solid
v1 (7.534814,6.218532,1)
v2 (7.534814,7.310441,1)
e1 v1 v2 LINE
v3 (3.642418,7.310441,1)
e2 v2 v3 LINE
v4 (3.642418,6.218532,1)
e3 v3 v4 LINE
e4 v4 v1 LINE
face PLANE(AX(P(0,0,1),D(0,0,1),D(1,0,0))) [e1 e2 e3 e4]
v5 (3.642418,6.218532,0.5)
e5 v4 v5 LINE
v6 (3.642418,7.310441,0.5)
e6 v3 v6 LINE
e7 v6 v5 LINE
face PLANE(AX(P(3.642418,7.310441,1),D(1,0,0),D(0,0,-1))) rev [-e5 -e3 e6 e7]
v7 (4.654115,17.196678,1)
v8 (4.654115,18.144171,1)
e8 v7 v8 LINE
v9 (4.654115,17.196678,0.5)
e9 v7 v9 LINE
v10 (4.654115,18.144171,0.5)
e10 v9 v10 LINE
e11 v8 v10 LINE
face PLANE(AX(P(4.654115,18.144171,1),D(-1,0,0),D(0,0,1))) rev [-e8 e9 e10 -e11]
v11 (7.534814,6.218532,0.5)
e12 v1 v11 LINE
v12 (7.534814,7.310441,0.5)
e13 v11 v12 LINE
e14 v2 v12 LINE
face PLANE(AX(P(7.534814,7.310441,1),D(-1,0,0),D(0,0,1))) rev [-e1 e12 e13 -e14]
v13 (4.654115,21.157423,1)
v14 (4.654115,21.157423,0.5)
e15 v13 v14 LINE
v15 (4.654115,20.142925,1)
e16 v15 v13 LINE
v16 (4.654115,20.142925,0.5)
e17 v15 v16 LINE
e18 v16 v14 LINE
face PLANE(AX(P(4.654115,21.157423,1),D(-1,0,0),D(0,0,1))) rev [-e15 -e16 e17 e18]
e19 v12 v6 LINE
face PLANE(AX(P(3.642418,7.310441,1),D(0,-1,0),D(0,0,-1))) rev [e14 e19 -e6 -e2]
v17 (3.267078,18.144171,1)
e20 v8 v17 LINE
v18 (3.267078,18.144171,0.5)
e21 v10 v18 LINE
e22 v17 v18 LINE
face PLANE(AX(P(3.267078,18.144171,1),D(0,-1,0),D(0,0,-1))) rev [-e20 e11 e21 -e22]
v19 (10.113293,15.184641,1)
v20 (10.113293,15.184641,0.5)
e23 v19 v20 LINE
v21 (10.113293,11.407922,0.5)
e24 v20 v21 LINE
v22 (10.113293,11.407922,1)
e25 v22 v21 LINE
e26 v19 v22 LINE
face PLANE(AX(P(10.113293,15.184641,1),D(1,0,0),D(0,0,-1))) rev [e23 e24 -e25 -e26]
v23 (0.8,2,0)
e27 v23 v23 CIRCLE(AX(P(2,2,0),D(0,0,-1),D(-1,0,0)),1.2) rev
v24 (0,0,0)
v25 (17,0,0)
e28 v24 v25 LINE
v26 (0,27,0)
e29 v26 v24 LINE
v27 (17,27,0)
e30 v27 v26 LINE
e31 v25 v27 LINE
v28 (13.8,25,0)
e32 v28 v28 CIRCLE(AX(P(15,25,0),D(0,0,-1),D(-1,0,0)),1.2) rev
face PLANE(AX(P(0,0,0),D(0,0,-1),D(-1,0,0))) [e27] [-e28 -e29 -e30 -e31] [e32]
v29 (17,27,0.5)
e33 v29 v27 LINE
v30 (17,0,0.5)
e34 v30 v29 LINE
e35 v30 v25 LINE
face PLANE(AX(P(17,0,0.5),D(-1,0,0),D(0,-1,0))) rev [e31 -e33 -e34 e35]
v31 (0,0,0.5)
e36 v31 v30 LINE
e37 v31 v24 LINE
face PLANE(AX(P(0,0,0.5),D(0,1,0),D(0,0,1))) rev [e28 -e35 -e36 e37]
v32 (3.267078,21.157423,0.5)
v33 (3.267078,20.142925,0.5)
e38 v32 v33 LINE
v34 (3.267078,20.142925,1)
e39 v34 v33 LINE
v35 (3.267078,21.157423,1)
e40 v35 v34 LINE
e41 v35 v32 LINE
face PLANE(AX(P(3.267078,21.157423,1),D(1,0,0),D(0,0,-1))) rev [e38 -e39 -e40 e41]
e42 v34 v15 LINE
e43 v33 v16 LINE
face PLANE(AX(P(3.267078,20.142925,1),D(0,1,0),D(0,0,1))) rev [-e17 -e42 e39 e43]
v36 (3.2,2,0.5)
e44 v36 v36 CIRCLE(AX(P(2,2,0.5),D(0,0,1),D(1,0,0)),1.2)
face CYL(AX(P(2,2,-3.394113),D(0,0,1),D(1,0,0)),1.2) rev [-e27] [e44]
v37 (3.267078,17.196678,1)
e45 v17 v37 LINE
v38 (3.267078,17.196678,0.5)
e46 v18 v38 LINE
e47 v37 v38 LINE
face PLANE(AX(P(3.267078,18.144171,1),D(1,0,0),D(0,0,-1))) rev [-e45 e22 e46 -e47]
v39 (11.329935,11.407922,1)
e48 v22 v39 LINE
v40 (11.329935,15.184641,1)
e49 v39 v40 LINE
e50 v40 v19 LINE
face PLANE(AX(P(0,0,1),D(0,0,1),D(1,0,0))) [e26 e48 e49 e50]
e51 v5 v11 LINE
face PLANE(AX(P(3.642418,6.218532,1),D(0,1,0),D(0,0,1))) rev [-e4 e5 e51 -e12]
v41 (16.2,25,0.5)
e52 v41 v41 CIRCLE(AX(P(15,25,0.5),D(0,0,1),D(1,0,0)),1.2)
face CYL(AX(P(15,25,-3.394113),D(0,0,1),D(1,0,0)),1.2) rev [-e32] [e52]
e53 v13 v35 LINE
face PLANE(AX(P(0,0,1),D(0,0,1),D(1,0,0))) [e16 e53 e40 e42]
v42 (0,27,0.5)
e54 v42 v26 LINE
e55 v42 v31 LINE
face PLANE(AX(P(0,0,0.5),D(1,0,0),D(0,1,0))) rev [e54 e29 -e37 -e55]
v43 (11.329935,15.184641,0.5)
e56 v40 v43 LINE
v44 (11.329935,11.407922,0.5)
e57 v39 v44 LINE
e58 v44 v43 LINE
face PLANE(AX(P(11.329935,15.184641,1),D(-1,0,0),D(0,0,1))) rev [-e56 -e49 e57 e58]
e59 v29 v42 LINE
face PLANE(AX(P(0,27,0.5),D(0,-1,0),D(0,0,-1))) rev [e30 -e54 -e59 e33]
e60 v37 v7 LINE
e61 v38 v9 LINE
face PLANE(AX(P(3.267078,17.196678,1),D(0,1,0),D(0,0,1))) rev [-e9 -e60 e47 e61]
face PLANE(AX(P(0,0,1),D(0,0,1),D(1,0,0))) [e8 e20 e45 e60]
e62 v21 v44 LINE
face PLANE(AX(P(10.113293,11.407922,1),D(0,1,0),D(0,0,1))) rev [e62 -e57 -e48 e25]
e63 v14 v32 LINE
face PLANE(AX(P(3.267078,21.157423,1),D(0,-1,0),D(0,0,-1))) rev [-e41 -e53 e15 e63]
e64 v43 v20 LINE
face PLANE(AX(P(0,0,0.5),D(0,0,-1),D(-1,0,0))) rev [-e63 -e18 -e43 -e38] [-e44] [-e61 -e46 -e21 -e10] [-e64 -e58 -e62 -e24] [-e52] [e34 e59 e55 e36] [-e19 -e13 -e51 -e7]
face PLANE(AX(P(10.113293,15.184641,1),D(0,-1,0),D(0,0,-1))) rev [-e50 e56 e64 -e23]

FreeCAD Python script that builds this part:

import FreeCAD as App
import Part
import Sketcher
from FreeCAD import Vector


def add_polygon(sketch, points):
    """Adds a closed chain of lines whose ends are joined by coincident constraints."""
    first, n = sketch.GeometryCount, len(points)
    for a, b in zip(points, points[1:] + points[:1]):
        sketch.addGeometry(Part.LineSegment(App.Vector(*a, 0), App.Vector(*b, 0)), False)
    for i in range(n):
        sketch.addConstraint(Sketcher.Constraint("Coincident", first + i, 2, first + (i + 1) % n, 1))

doc = App.newDocument("Part")
body = doc.addObject("PartDesign::Body", "Body")

# Sketch on XY plane
sketch1 = doc.addObject("Sketcher::SketchObject", "Sketch")
body.addObject(sketch1)
sketch1.AttachmentSupport = (doc.XY_Plane, [""])
sketch1.MapMode = "FlatFace"
add_polygon(sketch1, [(0, 27), (0, 0), (17, 0), (17, 27)])  # lines 0-3
sketch1.addConstraint([
    Sketcher.Constraint("Vertical", 0),
    Sketcher.Constraint("Horizontal", 1),
    Sketcher.Constraint("Vertical", 2),
    Sketcher.Constraint("Horizontal", 3),
    Sketcher.Constraint("Coincident", 0, 2, -1, 1),
    Sketcher.Constraint("DistanceX", 1, 1, 1, 2, 17.0),
    Sketcher.Constraint("DistanceY", 0, 2, 0, 1, 27.0),
])
pad1 = doc.addObject("PartDesign::Pad", "Pad")
body.addObject(pad1)
pad1.Profile = sketch1
pad1.Length = 0.5

# Sketch on XY plane
sketch2 = doc.addObject("Sketcher::SketchObject", "Sketch001")
body.addObject(sketch2)
sketch2.AttachmentSupport = (doc.XY_Plane, [""])
sketch2.MapMode = "FlatFace"
sketch2.AttachmentOffset = App.Placement(Vector(0, 0, 0.5), App.Rotation())
sketch2.addGeometry([
    Part.Circle(Vector(2, 2, 0), Vector(0, 0, 1), 1.2),
    Part.Circle(Vector(15, 25, 0), Vector(0, 0, 1), 1.2),
], False)
sketch2.addConstraint([
    Sketcher.Constraint("Equal", 0, 1),
    Sketcher.Constraint("Diameter", 0, 2.4),
    Sketcher.Constraint("DistanceX", -1, 1, 0, 3, 2.0),
    Sketcher.Constraint("DistanceY", -1, 1, 0, 3, 2.0),
    Sketcher.Constraint("DistanceX", -1, 1, 1, 3, 15.0),
    Sketcher.Constraint("DistanceY", -1, 1, 1, 3, 25.0),
])
pocket1 = doc.addObject("PartDesign::Pocket", "Pocket")
body.addObject(pocket1)
pocket1.Profile = sketch2
pocket1.Length = 0.5

# Sketch on XY plane
sketch3 = doc.addObject("Sketcher::SketchObject", "Sketch002")
body.addObject(sketch3)
sketch3.AttachmentSupport = (doc.XY_Plane, [""])
sketch3.MapMode = "FlatFace"
sketch3.AttachmentOffset = App.Placement(Vector(0, 0, 0.5), App.Rotation())
add_polygon(sketch3, [(3.3, 21.2), (3.3, 20.1), (4.7, 20.1), (4.7, 21.2)])  # lines 0-3
add_polygon(sketch3, [(3.3, 18.1), (3.3, 17.2), (4.7, 17.2), (4.7, 18.1)])  # lines 4-7
add_polygon(sketch3, [(10.1, 15.2), (10.1, 11.4), (11.3, 11.4), (11.3, 15.2)])  # lines 8-11
add_polygon(sketch3, [(3.6, 7.3), (3.6, 6.2), (7.5, 6.2), (7.5, 7.3)])  # lines 12-15
sketch3.addConstraint([
    Sketcher.Constraint("Vertical", 0),
    Sketcher.Constraint("Horizontal", 1),
    Sketcher.Constraint("Vertical", 2),
    Sketcher.Constraint("Horizontal", 3),
    Sketcher.Constraint("Vertical", 4),
    Sketcher.Constraint("Horizontal", 5),
    Sketcher.Constraint("Vertical", 6),
    Sketcher.Constraint("Horizontal", 7),
    Sketcher.Constraint("Vertical", 8),
    Sketcher.Constraint("Horizontal", 9),
    Sketcher.Constraint("Vertical", 10),
    Sketcher.Constraint("Horizontal", 11),
    Sketcher.Constraint("Vertical", 12),
    Sketcher.Constraint("Horizontal", 13),
    Sketcher.Constraint("Vertical", 14),
    Sketcher.Constraint("Horizontal", 15),
    Sketcher.Constraint("Vertical", 3, 2, 4, 2),
    Sketcher.Constraint("Vertical", 2, 2, 5, 2),
    Sketcher.Constraint("DistanceX", 9, 1, 9, 2, 1.216641),
    Sketcher.Constraint("DistanceY", 8, 2, 8, 1, 3.776719),
    Sketcher.Constraint("DistanceY", 12, 2, 12, 1, 1.091909),
    Sketcher.Constraint("DistanceY", 14, 2, 11, 2, 7.8742),
    Sketcher.Constraint("DistanceX", 1, 1, 1, 2, 1.387037),
    Sketcher.Constraint("DistanceX", 13, 1, 13, 2, 3.892396),
    Sketcher.Constraint("DistanceY", 0, 2, 0, 1, 1.014498),
    Sketcher.Constraint("DistanceY", 4, 2, 4, 1, 0.947493),
    Sketcher.Constraint("DistanceX", -1, 1, 0, 2, 3.267078),
    Sketcher.Constraint("DistanceY", -1, 1, 6, 2, 18.144171),
    Sketcher.Constraint("DistanceY", -1, 1, 8, 2, 11.407922),
    Sketcher.Constraint("DistanceY", 6, 2, 2, 2, 3.013252),
    Sketcher.Constraint("DistanceX", 5, 2, 8, 2, 5.459178),
    Sketcher.Constraint("DistanceX", 4, 2, 12, 2, 0.375339),
])
pad2 = doc.addObject("PartDesign::Pad", "Pad001")
body.addObject(pad2)
pad2.Profile = sketch3
pad2.Length = 0.5

doc.recompute()
